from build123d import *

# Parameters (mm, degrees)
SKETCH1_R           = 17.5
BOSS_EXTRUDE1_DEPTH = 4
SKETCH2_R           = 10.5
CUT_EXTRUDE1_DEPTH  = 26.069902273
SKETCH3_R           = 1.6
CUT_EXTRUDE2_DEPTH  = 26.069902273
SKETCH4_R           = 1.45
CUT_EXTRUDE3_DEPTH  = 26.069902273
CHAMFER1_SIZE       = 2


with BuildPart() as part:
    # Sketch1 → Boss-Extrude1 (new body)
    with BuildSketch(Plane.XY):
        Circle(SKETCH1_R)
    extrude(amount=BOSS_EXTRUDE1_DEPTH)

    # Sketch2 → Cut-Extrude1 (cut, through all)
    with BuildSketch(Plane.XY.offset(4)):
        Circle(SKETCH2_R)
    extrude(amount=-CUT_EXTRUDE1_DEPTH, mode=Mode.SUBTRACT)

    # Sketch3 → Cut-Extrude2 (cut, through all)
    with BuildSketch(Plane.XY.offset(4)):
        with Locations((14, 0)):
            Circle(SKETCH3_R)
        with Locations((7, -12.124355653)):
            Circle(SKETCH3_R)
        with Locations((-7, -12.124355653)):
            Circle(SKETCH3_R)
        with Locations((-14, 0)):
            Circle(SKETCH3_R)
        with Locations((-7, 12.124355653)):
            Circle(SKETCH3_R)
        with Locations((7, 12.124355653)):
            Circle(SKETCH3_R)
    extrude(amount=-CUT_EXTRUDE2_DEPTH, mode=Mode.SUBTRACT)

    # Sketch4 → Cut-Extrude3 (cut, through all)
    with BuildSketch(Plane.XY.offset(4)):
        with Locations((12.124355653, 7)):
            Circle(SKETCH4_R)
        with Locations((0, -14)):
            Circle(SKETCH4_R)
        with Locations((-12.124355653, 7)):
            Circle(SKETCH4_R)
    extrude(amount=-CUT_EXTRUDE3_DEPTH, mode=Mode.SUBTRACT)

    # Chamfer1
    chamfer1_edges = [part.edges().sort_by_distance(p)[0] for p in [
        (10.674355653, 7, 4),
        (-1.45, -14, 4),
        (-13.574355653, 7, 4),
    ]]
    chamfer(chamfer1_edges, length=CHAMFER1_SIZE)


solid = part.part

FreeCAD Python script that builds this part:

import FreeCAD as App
import Part
import Sketcher
from FreeCAD import Vector


def edges_at(feature, points):
    """Names of the edges that pass closest to the given points."""
    edges = feature.Shape.Edges
    near = lambda p: min(range(len(edges)), key=lambda i: edges[i].distToShape(Part.Vertex(*p))[0])
    return sorted({f"Edge{near(p) + 1}" for p in points})

doc = App.newDocument("Part")
params = doc.addObject("Spreadsheet::Sheet", "Params")
for row, (alias, value) in enumerate([
    ("sketch1_diameter", "35 mm"),
    ("pad1_length", "4 mm"),
    ("sketch2_diameter", "21 mm"),
    ("sketch3_diameter", "3.2 mm"),
    ("sketch4_diameter", "2.9 mm"),
    ("chamfer_size", "2 mm"),
], start=1):
    params.set(f"A{row}", alias)
    params.set(f"B{row}", "=" + value)
    params.setAlias(f"B{row}", alias)

body = doc.addObject("PartDesign::Body", "Body")

# Sketch on XY plane
sketch1 = body.newObject("Sketcher::SketchObject", "Sketch")
sketch1.AttachmentSupport = (doc.getObject("XY_Plane"), [""])
sketch1.MapMode = "FlatFace"
sketch1.addGeometry(Part.Circle(Vector(0, 0, 0), Vector(0, 0, 1), 17.5), False)
sketch1.addConstraint([
    Sketcher.Constraint("Coincident", 0, 3, -1, 1),
    Sketcher.Constraint("Diameter", 0, 35.0),
])
sketch1.setExpression("Constraints[1]", "Params.sketch1_diameter")
pad1 = body.newObject("PartDesign::Pad", "Pad")
pad1.Profile = sketch1
pad1.setExpression("Length", "Params.pad1_length")

# Sketch on XY plane
sketch2 = body.newObject("Sketcher::SketchObject", "Sketch001")
sketch2.AttachmentSupport = (doc.getObject("XY_Plane"), [""])
sketch2.MapMode = "FlatFace"
sketch2.AttachmentOffset = App.Placement(Vector(0, 0, 4), App.Rotation())
sketch2.addGeometry(Part.Circle(Vector(0, 0, 0), Vector(0, 0, 1), 10.5), False)
sketch2.addConstraint([
    Sketcher.Constraint("Coincident", 0, 3, -1, 1),
    Sketcher.Constraint("Diameter", 0, 21.0),
])
sketch2.setExpression("Constraints[1]", "Params.sketch2_diameter")
pocket1 = body.newObject("PartDesign::Pocket", "Pocket")
pocket1.Profile = sketch2
pocket1.Type = "ThroughAll"

# Sketch on XY plane
sketch3 = body.newObject("Sketcher::SketchObject", "Sketch002")
sketch3.AttachmentSupport = (doc.getObject("XY_Plane"), [""])
sketch3.MapMode = "FlatFace"
sketch3.AttachmentOffset = App.Placement(Vector(0, 0, 4), App.Rotation())
sketch3.addGeometry([
    Part.Circle(Vector(14, 0, 0), Vector(0, 0, 1), 1.6),  # 0
    Part.Circle(Vector(7, -12.124356, 0), Vector(0, 0, 1), 1.6),  # 1
    Part.Circle(Vector(-7, -12.124356, 0), Vector(0, 0, 1), 1.6),  # 2
    Part.Circle(Vector(-14, 0, 0), Vector(0, 0, 1), 1.6),  # 3
    Part.Circle(Vector(-7, 12.124356, 0), Vector(0, 0, 1), 1.6),  # 4
    Part.Circle(Vector(7, 12.124356, 0), Vector(0, 0, 1), 1.6),  # 5
], False)
sketch3.addConstraint([
    Sketcher.Constraint("Equal", 0, 1),
    Sketcher.Constraint("Equal", 1, 2),
    Sketcher.Constraint("Equal", 2, 3),
    Sketcher.Constraint("Equal", 3, 4),
    Sketcher.Constraint("Equal", 4, 5),
    Sketcher.Constraint("Symmetric", 0, 3, 3, 3, -1, 1),
    Sketcher.Constraint("Symmetric", 1, 3, 4, 3, -1, 1),
    Sketcher.Constraint("Symmetric", 2, 3, 5, 3, -1, 1),
    Sketcher.Constraint("Symmetric", 1, 3, 2, 3, -2),
    Sketcher.Constraint("PointOnObject", 0, 3, -1),
    Sketcher.Constraint("Diameter", 0, 3.2),
    Sketcher.Constraint("DistanceX", -1, 1, 0, 3, 14.0),
    Sketcher.Constraint("DistanceX", -1, 1, 1, 3, 7.0),
    Sketcher.Constraint("DistanceY", 2, 3, 4, 3, 24.248711),
])
sketch3.setExpression("Constraints[10]", "Params.sketch3_diameter")
pocket2 = body.newObject("PartDesign::Pocket", "Pocket001")
pocket2.Profile = sketch3
pocket2.Type = "ThroughAll"

# Sketch on XY plane
sketch4 = body.newObject("Sketcher::SketchObject", "Sketch003")
sketch4.AttachmentSupport = (doc.getObject("XY_Plane"), [""])
sketch4.MapMode = "FlatFace"
sketch4.AttachmentOffset = App.Placement(Vector(0, 0, 4), App.Rotation())
sketch4.addGeometry([
    Part.Circle(Vector(12.124356, 7, 0), Vector(0, 0, 1), 1.45),
    Part.Circle(Vector(0, -14, 0), Vector(0, 0, 1), 1.45),
    Part.Circle(Vector(-12.124356, 7, 0), Vector(0, 0, 1), 1.45),
], False)
sketch4.addConstraint([
    Sketcher.Constraint("Equal", 0, 1),
    Sketcher.Constraint("Equal", 1, 2),
    Sketcher.Constraint("Symmetric", 0, 3, 2, 3, -2),
    Sketcher.Constraint("PointOnObject", 1, 3, -2),
    Sketcher.Constraint("Diameter", 0, 2.9),
    Sketcher.Constraint("DistanceY", -1, 1, 0, 3, 7.0),
    Sketcher.Constraint("DistanceY", 1, 3, -1, 1, 14.0),
    Sketcher.Constraint("DistanceX", 2, 3, 0, 3, 24.248711),
])
sketch4.setExpression("Constraints[4]", "Params.sketch4_diameter")
pocket3 = body.newObject("PartDesign::Pocket", "Pocket002")
pocket3.Profile = sketch4
pocket3.Type = "ThroughAll"
doc.recompute()

chamfer = body.newObject("PartDesign::Chamfer", "Chamfer")
chamfer.Base = (pocket3, edges_at(pocket3, [(10.674, 7, 4), (-1.45, -14, 4), (-13.574, 7, 4)]))
chamfer.setExpression("Size", "Params.chamfer_size")

doc.recompute()
